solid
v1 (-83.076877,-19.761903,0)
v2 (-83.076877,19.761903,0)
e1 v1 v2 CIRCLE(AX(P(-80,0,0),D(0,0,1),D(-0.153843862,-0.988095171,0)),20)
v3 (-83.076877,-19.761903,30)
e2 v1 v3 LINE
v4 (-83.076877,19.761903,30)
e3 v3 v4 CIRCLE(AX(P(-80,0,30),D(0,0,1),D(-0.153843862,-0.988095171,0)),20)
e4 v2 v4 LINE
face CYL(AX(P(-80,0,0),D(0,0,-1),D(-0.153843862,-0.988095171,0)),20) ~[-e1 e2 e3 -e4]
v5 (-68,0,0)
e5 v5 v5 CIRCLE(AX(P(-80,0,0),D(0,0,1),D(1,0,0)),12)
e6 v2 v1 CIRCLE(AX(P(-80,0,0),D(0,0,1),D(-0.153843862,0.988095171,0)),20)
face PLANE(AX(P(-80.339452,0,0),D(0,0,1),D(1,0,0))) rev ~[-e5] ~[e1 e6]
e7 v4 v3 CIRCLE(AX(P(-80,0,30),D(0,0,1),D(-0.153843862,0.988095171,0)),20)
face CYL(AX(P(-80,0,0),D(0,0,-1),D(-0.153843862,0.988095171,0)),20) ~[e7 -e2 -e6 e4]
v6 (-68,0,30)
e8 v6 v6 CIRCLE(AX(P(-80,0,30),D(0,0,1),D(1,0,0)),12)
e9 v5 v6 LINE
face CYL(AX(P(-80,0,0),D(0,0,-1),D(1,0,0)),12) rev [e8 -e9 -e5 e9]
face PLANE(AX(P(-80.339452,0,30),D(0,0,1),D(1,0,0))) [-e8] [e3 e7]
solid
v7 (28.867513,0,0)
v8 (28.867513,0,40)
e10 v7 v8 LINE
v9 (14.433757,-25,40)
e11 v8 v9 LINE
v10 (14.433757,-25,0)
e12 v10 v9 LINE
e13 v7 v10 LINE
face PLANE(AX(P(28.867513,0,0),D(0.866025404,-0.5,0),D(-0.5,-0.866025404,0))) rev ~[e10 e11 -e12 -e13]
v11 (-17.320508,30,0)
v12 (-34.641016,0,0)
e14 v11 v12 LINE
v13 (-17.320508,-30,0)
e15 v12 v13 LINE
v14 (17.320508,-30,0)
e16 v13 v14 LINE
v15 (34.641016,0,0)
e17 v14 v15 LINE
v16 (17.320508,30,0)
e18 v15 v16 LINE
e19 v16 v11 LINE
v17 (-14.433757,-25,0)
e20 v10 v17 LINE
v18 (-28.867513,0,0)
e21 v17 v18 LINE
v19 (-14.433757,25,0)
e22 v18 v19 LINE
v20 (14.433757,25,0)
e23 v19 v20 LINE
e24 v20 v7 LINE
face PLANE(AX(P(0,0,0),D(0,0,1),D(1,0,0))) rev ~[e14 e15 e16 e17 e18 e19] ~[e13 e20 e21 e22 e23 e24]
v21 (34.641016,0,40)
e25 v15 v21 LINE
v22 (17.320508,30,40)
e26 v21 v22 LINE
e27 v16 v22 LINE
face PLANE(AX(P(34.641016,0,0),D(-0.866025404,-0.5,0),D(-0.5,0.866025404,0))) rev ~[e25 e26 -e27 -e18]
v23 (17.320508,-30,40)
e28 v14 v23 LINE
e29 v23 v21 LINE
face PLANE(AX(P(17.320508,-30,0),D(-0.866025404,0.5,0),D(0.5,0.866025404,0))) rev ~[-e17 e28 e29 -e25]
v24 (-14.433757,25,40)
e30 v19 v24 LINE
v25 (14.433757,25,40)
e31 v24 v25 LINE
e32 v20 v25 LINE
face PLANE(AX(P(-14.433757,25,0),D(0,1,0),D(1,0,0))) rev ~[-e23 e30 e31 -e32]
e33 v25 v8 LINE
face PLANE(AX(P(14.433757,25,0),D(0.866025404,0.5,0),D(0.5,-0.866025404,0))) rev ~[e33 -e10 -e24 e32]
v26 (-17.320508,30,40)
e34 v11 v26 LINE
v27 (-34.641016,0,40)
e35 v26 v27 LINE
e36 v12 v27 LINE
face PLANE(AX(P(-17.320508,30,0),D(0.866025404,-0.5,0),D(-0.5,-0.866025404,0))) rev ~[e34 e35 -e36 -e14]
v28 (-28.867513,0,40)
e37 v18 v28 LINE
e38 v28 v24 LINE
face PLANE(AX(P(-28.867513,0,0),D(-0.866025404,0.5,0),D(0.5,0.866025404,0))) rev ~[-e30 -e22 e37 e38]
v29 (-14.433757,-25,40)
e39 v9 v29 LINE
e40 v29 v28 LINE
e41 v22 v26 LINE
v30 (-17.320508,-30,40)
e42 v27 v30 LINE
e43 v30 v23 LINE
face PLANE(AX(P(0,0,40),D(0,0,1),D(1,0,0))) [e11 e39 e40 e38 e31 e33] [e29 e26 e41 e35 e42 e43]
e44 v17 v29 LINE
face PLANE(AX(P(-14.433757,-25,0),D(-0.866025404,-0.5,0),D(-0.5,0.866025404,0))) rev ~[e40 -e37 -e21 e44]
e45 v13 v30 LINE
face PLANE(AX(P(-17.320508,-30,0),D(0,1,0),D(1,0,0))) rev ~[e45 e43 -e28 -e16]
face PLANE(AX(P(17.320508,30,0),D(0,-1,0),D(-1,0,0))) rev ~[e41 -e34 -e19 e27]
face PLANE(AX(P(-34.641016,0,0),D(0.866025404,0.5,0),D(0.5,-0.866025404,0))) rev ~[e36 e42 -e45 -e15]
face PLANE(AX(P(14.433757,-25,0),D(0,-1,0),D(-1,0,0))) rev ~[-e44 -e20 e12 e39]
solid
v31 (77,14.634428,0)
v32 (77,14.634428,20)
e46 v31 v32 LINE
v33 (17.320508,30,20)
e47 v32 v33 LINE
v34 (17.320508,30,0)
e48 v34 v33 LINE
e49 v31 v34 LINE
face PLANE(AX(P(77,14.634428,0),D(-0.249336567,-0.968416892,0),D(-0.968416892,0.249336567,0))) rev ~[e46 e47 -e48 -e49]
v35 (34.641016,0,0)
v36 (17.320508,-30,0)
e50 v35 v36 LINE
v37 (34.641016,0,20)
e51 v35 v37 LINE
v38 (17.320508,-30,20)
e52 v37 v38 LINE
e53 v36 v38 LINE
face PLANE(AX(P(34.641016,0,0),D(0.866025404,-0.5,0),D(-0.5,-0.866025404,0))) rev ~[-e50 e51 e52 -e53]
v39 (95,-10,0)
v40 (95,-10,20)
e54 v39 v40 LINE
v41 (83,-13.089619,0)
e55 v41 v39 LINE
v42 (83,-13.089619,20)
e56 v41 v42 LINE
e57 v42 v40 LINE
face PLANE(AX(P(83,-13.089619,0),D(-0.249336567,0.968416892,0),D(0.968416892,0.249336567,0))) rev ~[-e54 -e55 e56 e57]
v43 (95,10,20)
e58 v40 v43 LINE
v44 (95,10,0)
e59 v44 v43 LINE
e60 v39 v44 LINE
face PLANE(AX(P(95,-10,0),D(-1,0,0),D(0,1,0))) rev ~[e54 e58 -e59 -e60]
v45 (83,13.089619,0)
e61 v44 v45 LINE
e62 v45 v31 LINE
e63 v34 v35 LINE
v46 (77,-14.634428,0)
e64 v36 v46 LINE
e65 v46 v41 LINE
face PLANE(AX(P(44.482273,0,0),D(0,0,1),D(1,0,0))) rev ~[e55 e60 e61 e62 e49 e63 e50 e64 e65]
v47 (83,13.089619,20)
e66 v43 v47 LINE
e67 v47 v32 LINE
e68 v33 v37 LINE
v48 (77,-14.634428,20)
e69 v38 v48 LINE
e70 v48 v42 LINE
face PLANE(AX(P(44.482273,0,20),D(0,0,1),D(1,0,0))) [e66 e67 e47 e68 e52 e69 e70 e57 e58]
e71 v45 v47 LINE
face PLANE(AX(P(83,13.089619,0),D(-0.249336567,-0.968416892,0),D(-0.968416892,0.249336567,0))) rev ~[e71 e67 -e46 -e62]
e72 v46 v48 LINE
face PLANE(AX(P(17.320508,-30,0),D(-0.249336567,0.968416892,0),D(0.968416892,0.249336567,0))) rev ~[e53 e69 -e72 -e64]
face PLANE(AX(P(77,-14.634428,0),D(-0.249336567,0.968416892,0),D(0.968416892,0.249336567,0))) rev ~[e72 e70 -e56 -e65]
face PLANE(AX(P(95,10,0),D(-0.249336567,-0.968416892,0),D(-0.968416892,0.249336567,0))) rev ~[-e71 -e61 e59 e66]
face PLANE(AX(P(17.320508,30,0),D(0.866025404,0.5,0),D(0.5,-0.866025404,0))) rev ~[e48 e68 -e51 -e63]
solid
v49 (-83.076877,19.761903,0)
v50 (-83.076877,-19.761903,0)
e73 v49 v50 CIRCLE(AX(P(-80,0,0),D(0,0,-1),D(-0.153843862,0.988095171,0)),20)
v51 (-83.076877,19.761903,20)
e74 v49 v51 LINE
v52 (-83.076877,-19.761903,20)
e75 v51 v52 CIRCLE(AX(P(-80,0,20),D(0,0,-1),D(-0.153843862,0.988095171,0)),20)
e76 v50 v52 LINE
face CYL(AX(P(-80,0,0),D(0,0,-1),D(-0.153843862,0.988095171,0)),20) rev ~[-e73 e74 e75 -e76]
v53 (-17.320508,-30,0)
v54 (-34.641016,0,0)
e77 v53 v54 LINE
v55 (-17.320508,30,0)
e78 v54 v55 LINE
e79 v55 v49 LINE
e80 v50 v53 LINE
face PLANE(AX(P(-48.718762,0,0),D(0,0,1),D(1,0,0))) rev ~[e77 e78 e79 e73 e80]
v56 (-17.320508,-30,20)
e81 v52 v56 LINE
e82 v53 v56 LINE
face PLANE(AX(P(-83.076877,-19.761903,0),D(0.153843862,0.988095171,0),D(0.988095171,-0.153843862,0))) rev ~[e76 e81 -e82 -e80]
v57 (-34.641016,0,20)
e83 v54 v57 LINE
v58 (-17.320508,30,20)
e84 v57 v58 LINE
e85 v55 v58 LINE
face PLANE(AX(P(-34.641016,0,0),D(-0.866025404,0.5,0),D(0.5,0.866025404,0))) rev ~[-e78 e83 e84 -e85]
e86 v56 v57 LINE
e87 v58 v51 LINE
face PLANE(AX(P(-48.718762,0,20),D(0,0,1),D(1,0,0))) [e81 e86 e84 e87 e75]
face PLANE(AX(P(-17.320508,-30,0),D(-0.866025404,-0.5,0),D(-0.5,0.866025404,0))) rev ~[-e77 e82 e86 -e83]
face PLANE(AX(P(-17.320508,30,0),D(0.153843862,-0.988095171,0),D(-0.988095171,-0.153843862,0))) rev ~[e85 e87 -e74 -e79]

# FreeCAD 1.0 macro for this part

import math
import FreeCAD as App
import Part
import Sketcher

V = App.Vector
Q = App.Units.Quantity

doc = App.newDocument("Part")
body = doc.addObject("PartDesign::Body", "Body")

# Sketch on XY plane
sketch1 = doc.addObject("Sketcher::SketchObject", "Sketch")
body.addObject(sketch1)
sketch1.AttachmentSupport = (doc.XY_Plane, [""])
sketch1.MapMode = "FlatFace"
sketch1.addGeometry(Part.LineSegment(V(17, 30, 0), V(-17, 30, 0)), False)
sketch1.addGeometry(Part.LineSegment(V(-17, 30, 0), V(-35, 0, 0)), False)
sketch1.addGeometry(Part.LineSegment(V(-35, 0, 0), V(-17, -30, 0)), False)
sketch1.addGeometry(Part.LineSegment(V(-17, -30, 0), V(17, -30, 0)), False)
sketch1.addGeometry(Part.LineSegment(V(17, -30, 0), V(35, 0, 0)), False)
sketch1.addGeometry(Part.LineSegment(V(35, 0, 0), V(17, 30, 0)), False)
sketch1.addGeometry(Part.LineSegment(V(-14, -25, 0), V(-29, 0, 0)), False)
sketch1.addGeometry(Part.LineSegment(V(-29, 0, 0), V(-14, 25, 0)), False)
sketch1.addGeometry(Part.LineSegment(V(-14, 25, 0), V(14, 25, 0)), False)
sketch1.addGeometry(Part.LineSegment(V(14, 25, 0), V(29, 0, 0)), False)
sketch1.addGeometry(Part.LineSegment(V(29, 0, 0), V(14, -25, 0)), False)
sketch1.addGeometry(Part.LineSegment(V(14, -25, 0), V(-14, -25, 0)), False)
sketch1.addConstraint(Sketcher.Constraint("Coincident", 0, 2, 1, 1))
sketch1.addConstraint(Sketcher.Constraint("Coincident", 1, 2, 2, 1))
sketch1.addConstraint(Sketcher.Constraint("Coincident", 2, 2, 3, 1))
sketch1.addConstraint(Sketcher.Constraint("Coincident", 3, 2, 4, 1))
sketch1.addConstraint(Sketcher.Constraint("Coincident", 4, 2, 5, 1))
sketch1.addConstraint(Sketcher.Constraint("Coincident", 5, 2, 0, 1))
sketch1.addConstraint(Sketcher.Constraint("Coincident", 6, 2, 7, 1))
sketch1.addConstraint(Sketcher.Constraint("Coincident", 7, 2, 8, 1))
sketch1.addConstraint(Sketcher.Constraint("Coincident", 8, 2, 9, 1))
sketch1.addConstraint(Sketcher.Constraint("Coincident", 9, 2, 10, 1))
sketch1.addConstraint(Sketcher.Constraint("Coincident", 10, 2, 11, 1))
sketch1.addConstraint(Sketcher.Constraint("Coincident", 11, 2, 6, 1))
sketch1.addConstraint(Sketcher.Constraint("Horizontal", 0))
sketch1.addConstraint(Sketcher.Constraint("Horizontal", 3))
sketch1.addConstraint(Sketcher.Constraint("Horizontal", 8))
sketch1.addConstraint(Sketcher.Constraint("Horizontal", 11))
sketch1.addConstraint(Sketcher.Constraint("Symmetric", 0, 2, 3, 2, -1, 1))
sketch1.addConstraint(Sketcher.Constraint("Symmetric", 1, 2, 4, 2, -1, 1))
sketch1.addConstraint(Sketcher.Constraint("Symmetric", 6, 2, 9, 2, -1, 1))
sketch1.addConstraint(Sketcher.Constraint("Symmetric", 7, 2, 10, 2, -1, 1))
sketch1.addConstraint(Sketcher.Constraint("PointOnObject", 1, 2, -1))
sketch1.addConstraint(Sketcher.Constraint("PointOnObject", 6, 2, -1))
sketch1.addConstraint(Sketcher.Constraint("Parallel", 2, 5))
sketch1.addConstraint(Sketcher.Constraint("Parallel", 5, 6))
sketch1.addConstraint(Sketcher.Constraint("Parallel", 4, 7))
sketch1.addConstraint(Sketcher.Constraint("Parallel", 6, 9))
sketch1.addConstraint(Sketcher.Constraint("Vertical", 0, 2, 2, 2))
sketch1.addConstraint(Sketcher.Constraint("Angle", 1, Q("-120 deg")))
sketch1.addConstraint(Sketcher.Constraint("DistanceY", -1, 1, 0, 2, Q("30 mm")))
sketch1.addConstraint(Sketcher.Constraint("DistanceY", -1, 1, 7, 2, Q("25 mm")))
sketch1.addConstraint(Sketcher.Constraint("DistanceX", 0, 2, 0, 1, Q("34.641016 mm")))
sketch1.addConstraint(Sketcher.Constraint("DistanceX", 8, 1, 8, 2, Q("28.867513 mm")))
pad1 = doc.addObject("PartDesign::Pad", "Pad")
body.addObject(pad1)
pad1.Profile = sketch1
pad1.Length = 40
body2 = doc.addObject("PartDesign::Body", "Body001")

# Sketch on XY plane
sketch2 = doc.addObject("Sketcher::SketchObject", "Sketch001")
body2.addObject(sketch2)
sketch2.AttachmentSupport = (doc.getObject("XY_Plane001"), [""])
sketch2.MapMode = "FlatFace"
sketch2.addGeometry(Part.ArcOfCircle(Part.Circle(V(-80, 0, 0), V(0, 0, 1), 20), math.radians(99), math.radians(261)), False)
sketch2.addGeometry(Part.ArcOfCircle(Part.Circle(V(-80, 0, 0), V(0, 0, 1), 20), math.radians(-99), math.radians(99)), False)
sketch2.addGeometry(Part.Circle(V(-80, 0, 0), V(0, 0, 1), 12), False)
sketch2.addConstraint(Sketcher.Constraint("Tangent", 0, 1, 1, 2))
sketch2.addConstraint(Sketcher.Constraint("Coincident", 1, 1, 0, 2))
sketch2.addConstraint(Sketcher.Constraint("Coincident", 2, 3, 0, 3))
sketch2.addConstraint(Sketcher.Constraint("Symmetric", 0, 1, 1, 1, -1))
sketch2.addConstraint(Sketcher.Constraint("Diameter", 2, Q("24 mm")))
sketch2.addConstraint(Sketcher.Constraint("Radius", 0, Q("20 mm")))
sketch2.addConstraint(Sketcher.Constraint("DistanceX", 0, 3, -1, 1, Q("80 mm")))
sketch2.addConstraint(Sketcher.Constraint("DistanceX", 0, 1, -1, 1, Q("83.076877 mm")))
pad2 = doc.addObject("PartDesign::Pad", "Pad001")
body2.addObject(pad2)
pad2.Profile = sketch2
pad2.Length = 30
body3 = doc.addObject("PartDesign::Body", "Body002")

# Sketch on XY plane
sketch3 = doc.addObject("Sketcher::SketchObject", "Sketch002")
body3.addObject(sketch3)
sketch3.AttachmentSupport = (doc.getObject("XY_Plane002"), [""])
sketch3.MapMode = "FlatFace"
sketch3.addGeometry(Part.LineSegment(V(-35, 0, 0), V(-17, 30, 0)), False)
sketch3.addGeometry(Part.LineSegment(V(-17, 30, 0), V(-83, 20, 0)), False)
sketch3.addGeometry(Part.ArcOfCircle(Part.Circle(V(-80, 0, 0), V(0, 0, 1), 20), math.radians(-99), math.radians(99)), False)
sketch3.addGeometry(Part.LineSegment(V(-83, -20, 0), V(-17, -30, 0)), False)
sketch3.addGeometry(Part.LineSegment(V(-17, -30, 0), V(-35, 0, 0)), False)
sketch3.addConstraint(Sketcher.Constraint("Coincident", 0, 2, 1, 1))
sketch3.addConstraint(Sketcher.Constraint("Tangent", 1, 2, 2, 2))
sketch3.addConstraint(Sketcher.Constraint("Tangent", 2, 1, 3, 1))
sketch3.addConstraint(Sketcher.Constraint("Coincident", 3, 2, 4, 1))
sketch3.addConstraint(Sketcher.Constraint("Coincident", 4, 2, 0, 1))
sketch3.addConstraint(Sketcher.Constraint("Symmetric", 1, 2, 2, 1, -1))
sketch3.addConstraint(Sketcher.Constraint("PointOnObject", 4, 2, -1))
sketch3.addConstraint(Sketcher.Constraint("Vertical", 0, 2, 3, 2))
sketch3.addConstraint(Sketcher.Constraint("Radius", 2, Q("20 mm")))
sketch3.addConstraint(Sketcher.Constraint("Angle", 0, Q("60 deg")))
sketch3.addConstraint(Sketcher.Constraint("DistanceX", 2, 3, -1, 1, Q("80 mm")))
sketch3.addConstraint(Sketcher.Constraint("DistanceY", -1, 1, 0, 2, Q("30 mm")))
sketch3.addConstraint(Sketcher.Constraint("Distance", 1, Q("66.548619 mm")))
pad3 = doc.addObject("PartDesign::Pad", "Pad002")
body3.addObject(pad3)
pad3.Profile = sketch3
pad3.Length = 20
body4 = doc.addObject("PartDesign::Body", "Body003")

# Sketch on XY plane
sketch4 = doc.addObject("Sketcher::SketchObject", "Sketch003")
body4.addObject(sketch4)
sketch4.AttachmentSupport = (doc.getObject("XY_Plane003"), [""])
sketch4.MapMode = "FlatFace"
sketch4.addGeometry(Part.LineSegment(V(77, 15, 0), V(17, 30, 0)), False)
sketch4.addGeometry(Part.LineSegment(V(17, 30, 0), V(35, 0, 0)), False)
sketch4.addGeometry(Part.LineSegment(V(35, 0, 0), V(17, -30, 0)), False)
sketch4.addGeometry(Part.LineSegment(V(17, -30, 0), V(77, -15, 0)), False)
sketch4.addGeometry(Part.LineSegment(V(77, -15, 0), V(83, -13, 0)), False)
sketch4.addGeometry(Part.LineSegment(V(83, -13, 0), V(95, -10, 0)), False)
sketch4.addGeometry(Part.LineSegment(V(95, -10, 0), V(95, 10, 0)), False)
sketch4.addGeometry(Part.LineSegment(V(95, 10, 0), V(83, 13, 0)), False)
sketch4.addGeometry(Part.LineSegment(V(83, 13, 0), V(77, 15, 0)), False)
sketch4.addConstraint(Sketcher.Constraint("Coincident", 0, 2, 1, 1))
sketch4.addConstraint(Sketcher.Constraint("Coincident", 1, 2, 2, 1))
sketch4.addConstraint(Sketcher.Constraint("Coincident", 2, 2, 3, 1))
sketch4.addConstraint(Sketcher.Constraint("Coincident", 3, 2, 4, 1))
sketch4.addConstraint(Sketcher.Constraint("Coincident", 4, 2, 5, 1))
sketch4.addConstraint(Sketcher.Constraint("Coincident", 5, 2, 6, 1))
sketch4.addConstraint(Sketcher.Constraint("Coincident", 6, 2, 7, 1))
sketch4.addConstraint(Sketcher.Constraint("Coincident", 7, 2, 8, 1))
sketch4.addConstraint(Sketcher.Constraint("Coincident", 8, 2, 0, 1))
sketch4.addConstraint(Sketcher.Constraint("Vertical", 6))
sketch4.addConstraint(Sketcher.Constraint("Symmetric", 0, 2, 2, 2, -1))
sketch4.addConstraint(Sketcher.Constraint("Symmetric", 4, 2, 7, 2, -1))
sketch4.addConstraint(Sketcher.Constraint("Symmetric", 3, 2, 8, 2, -1))
sketch4.addConstraint(Sketcher.Constraint("PointOnObject", 1, 2, -1))
sketch4.addConstraint(Sketcher.Constraint("Parallel", 3, 4))
sketch4.addConstraint(Sketcher.Constraint("Parallel", 4, 5))
sketch4.addConstraint(Sketcher.Constraint("Parallel", 0, 7))
sketch4.addConstraint(Sketcher.Constraint("DistanceY", 6, 1, 6, 2, Q("20 mm")))
sketch4.addConstraint(Sketcher.Constraint("Angle", 1, Q("-60 deg")))
sketch4.addConstraint(Sketcher.Constraint("DistanceY", -1, 1, 0, 2, Q("30 mm")))
sketch4.addConstraint(Sketcher.Constraint("DistanceX", -1, 1, 3, 2, Q("77 mm")))
sketch4.addConstraint(Sketcher.Constraint("DistanceX", -1, 1, 4, 2, Q("83 mm")))
sketch4.addConstraint(Sketcher.Constraint("DistanceX", -1, 1, 5, 2, Q("95 mm")))
sketch4.addConstraint(Sketcher.Constraint("DistanceX", -1, 1, 0, 2, Q("17.320508 mm")))
pad4 = doc.addObject("PartDesign::Pad", "Pad003")
body4.addObject(pad4)
pad4.Profile = sketch4
pad4.Length = 20

doc.recompute()
